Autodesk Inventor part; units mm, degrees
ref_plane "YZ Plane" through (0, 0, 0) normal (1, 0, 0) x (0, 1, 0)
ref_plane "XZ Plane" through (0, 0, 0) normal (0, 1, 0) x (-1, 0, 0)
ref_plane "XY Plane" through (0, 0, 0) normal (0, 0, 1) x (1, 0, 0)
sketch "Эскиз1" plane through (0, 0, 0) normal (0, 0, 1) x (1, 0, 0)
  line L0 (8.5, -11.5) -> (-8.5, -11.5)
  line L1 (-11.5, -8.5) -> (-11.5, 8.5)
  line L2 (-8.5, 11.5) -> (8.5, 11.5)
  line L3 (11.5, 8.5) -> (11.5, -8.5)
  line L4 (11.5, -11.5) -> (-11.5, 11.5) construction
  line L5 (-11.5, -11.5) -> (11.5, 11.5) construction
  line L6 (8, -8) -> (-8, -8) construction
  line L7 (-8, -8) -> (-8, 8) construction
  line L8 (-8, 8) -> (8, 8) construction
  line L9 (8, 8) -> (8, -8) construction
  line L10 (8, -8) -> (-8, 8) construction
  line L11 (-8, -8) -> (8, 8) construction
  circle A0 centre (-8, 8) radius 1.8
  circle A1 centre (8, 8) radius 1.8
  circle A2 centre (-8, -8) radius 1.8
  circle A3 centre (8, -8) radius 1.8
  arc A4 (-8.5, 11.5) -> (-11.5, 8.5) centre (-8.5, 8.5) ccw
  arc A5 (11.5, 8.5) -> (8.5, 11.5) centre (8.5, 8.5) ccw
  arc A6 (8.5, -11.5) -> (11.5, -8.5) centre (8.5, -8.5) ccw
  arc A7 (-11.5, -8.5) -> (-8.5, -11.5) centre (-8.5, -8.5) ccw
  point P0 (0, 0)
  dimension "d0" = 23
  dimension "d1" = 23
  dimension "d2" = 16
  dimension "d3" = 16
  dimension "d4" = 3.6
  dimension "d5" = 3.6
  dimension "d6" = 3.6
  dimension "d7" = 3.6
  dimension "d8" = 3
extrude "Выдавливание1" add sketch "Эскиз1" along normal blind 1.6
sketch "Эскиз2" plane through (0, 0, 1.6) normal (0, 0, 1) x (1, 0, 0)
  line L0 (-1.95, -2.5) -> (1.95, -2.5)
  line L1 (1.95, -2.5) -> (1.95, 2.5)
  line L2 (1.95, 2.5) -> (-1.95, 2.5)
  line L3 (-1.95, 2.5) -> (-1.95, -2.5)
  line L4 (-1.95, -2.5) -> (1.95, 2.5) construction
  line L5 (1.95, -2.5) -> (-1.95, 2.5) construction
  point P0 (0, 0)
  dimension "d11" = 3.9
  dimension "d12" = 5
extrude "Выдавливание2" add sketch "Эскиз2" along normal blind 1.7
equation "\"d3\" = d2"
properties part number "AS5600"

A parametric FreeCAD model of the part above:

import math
import FreeCAD as App
import Part
import Sketcher
from FreeCAD import Vector

doc = App.newDocument("Part")
body = doc.addObject("PartDesign::Body", "Body")

# Sketch on XY plane
sketch1 = body.newObject("Sketcher::SketchObject", "Sketch")
sketch1.AttachmentSupport = (doc.getObject("XY_Plane"), [""])
sketch1.MapMode = "FlatFace"
sketch1.addGeometry([
    Part.LineSegment(Vector(-8.5, -11.5, 0), Vector(8.5, -11.5, 0)),  # 0
    Part.ArcOfCircle(Part.Circle(Vector(8.5, -8.5, 0), Vector(0, 0, 1), 3), math.radians(-90), math.radians(0)),  # 1
    Part.LineSegment(Vector(11.5, -8.5, 0), Vector(11.5, 8.5, 0)),  # 2
    Part.ArcOfCircle(Part.Circle(Vector(8.5, 8.5, 0), Vector(0, 0, 1), 3), math.radians(0), math.radians(90)),  # 3
    Part.LineSegment(Vector(8.5, 11.5, 0), Vector(-8.5, 11.5, 0)),  # 4
    Part.ArcOfCircle(Part.Circle(Vector(-8.5, 8.5, 0), Vector(0, 0, 1), 3), math.radians(90), math.radians(180)),  # 5
    Part.LineSegment(Vector(-11.5, 8.5, 0), Vector(-11.5, -8.5, 0)),  # 6
    Part.ArcOfCircle(Part.Circle(Vector(-8.5, -8.5, 0), Vector(0, 0, 1), 3), math.radians(180), math.radians(270)),  # 7
    Part.Circle(Vector(-8, -8, 0), Vector(0, 0, 1), 1.8),  # 8
    Part.Circle(Vector(8, -8, 0), Vector(0, 0, 1), 1.8),  # 9
    Part.Circle(Vector(-8, 8, 0), Vector(0, 0, 1), 1.8),  # 10
    Part.Circle(Vector(8, 8, 0), Vector(0, 0, 1), 1.8),  # 11
], False)
sketch1.addConstraint([
    Sketcher.Constraint("Tangent", 0, 2, 1, 1),
    Sketcher.Constraint("Tangent", 1, 2, 2, 1),
    Sketcher.Constraint("Tangent", 2, 2, 3, 1),
    Sketcher.Constraint("Tangent", 3, 2, 4, 1),
    Sketcher.Constraint("Tangent", 4, 2, 5, 1),
    Sketcher.Constraint("Tangent", 5, 2, 6, 1),
    Sketcher.Constraint("Tangent", 6, 2, 7, 1),
    Sketcher.Constraint("Tangent", 7, 2, 0, 1),
    Sketcher.Constraint("Horizontal", 0),
    Sketcher.Constraint("Vertical", 2),
    Sketcher.Constraint("Horizontal", 4),
    Sketcher.Constraint("Vertical", 6),
    Sketcher.Constraint("Equal", 1, 3),
    Sketcher.Constraint("Equal", 3, 5),
    Sketcher.Constraint("Equal", 5, 7),
    Sketcher.Constraint("Equal", 8, 9),
    Sketcher.Constraint("Equal", 9, 10),
    Sketcher.Constraint("Equal", 10, 11),
    Sketcher.Constraint("Symmetric", 1, 3, 5, 3, -1, 1),
    Sketcher.Constraint("Symmetric", 9, 3, 10, 3, -1, 1),
    Sketcher.Constraint("Symmetric", 8, 3, 11, 3, -1, 1),
    Sketcher.Constraint("Symmetric", 8, 3, 9, 3, -2),
    Sketcher.Constraint("Equal", 4, 2),
    Sketcher.Constraint("Radius", 1, 3.0),
    Sketcher.Constraint("Diameter", 8, 3.6),
    Sketcher.Constraint("DistanceX", 8, 3, 9, 3, 16.0),
    Sketcher.Constraint("DistanceY", 8, 3, 10, 3, 16.0),
    Sketcher.Constraint("DistanceX", 0, 1, 0, 2, 17.0),
])
pad1 = body.newObject("PartDesign::Pad", "Pad")
pad1.Profile = sketch1
pad1.Length = 1.6

# Sketch on XY plane
sketch2 = body.newObject("Sketcher::SketchObject", "Sketch001")
sketch2.AttachmentSupport = (doc.getObject("XY_Plane"), [""])
sketch2.MapMode = "FlatFace"
sketch2.AttachmentOffset = App.Placement(Vector(0, 0, 1.6), App.Rotation())
sketch2.addGeometry([
    Part.LineSegment(Vector(-1.95, 2.5, 0), Vector(-1.95, -2.5, 0)),
    Part.LineSegment(Vector(-1.95, -2.5, 0), Vector(1.95, -2.5, 0)),
    Part.LineSegment(Vector(1.95, -2.5, 0), Vector(1.95, 2.5, 0)),
    Part.LineSegment(Vector(1.95, 2.5, 0), Vector(-1.95, 2.5, 0)),
], False)
sketch2.addConstraint([
    Sketcher.Constraint("Coincident", 0, 2, 1, 1),
    Sketcher.Constraint("Coincident", 1, 2, 2, 1),
    Sketcher.Constraint("Coincident", 2, 2, 3, 1),
    Sketcher.Constraint("Coincident", 3, 2, 0, 1),
    Sketcher.Constraint("Vertical", 0),
    Sketcher.Constraint("Horizontal", 1),
    Sketcher.Constraint("Vertical", 2),
    Sketcher.Constraint("Horizontal", 3),
    Sketcher.Constraint("Symmetric", 0, 2, 2, 2, -1, 1),
    Sketcher.Constraint("DistanceY", 0, 2, 0, 1, 5.0),
    Sketcher.Constraint("DistanceX", 1, 1, 1, 2, 3.9),
])
pad2 = body.newObject("PartDesign::Pad", "Pad001")
pad2.Profile = sketch2
pad2.Length = 1.7

doc.recompute()
